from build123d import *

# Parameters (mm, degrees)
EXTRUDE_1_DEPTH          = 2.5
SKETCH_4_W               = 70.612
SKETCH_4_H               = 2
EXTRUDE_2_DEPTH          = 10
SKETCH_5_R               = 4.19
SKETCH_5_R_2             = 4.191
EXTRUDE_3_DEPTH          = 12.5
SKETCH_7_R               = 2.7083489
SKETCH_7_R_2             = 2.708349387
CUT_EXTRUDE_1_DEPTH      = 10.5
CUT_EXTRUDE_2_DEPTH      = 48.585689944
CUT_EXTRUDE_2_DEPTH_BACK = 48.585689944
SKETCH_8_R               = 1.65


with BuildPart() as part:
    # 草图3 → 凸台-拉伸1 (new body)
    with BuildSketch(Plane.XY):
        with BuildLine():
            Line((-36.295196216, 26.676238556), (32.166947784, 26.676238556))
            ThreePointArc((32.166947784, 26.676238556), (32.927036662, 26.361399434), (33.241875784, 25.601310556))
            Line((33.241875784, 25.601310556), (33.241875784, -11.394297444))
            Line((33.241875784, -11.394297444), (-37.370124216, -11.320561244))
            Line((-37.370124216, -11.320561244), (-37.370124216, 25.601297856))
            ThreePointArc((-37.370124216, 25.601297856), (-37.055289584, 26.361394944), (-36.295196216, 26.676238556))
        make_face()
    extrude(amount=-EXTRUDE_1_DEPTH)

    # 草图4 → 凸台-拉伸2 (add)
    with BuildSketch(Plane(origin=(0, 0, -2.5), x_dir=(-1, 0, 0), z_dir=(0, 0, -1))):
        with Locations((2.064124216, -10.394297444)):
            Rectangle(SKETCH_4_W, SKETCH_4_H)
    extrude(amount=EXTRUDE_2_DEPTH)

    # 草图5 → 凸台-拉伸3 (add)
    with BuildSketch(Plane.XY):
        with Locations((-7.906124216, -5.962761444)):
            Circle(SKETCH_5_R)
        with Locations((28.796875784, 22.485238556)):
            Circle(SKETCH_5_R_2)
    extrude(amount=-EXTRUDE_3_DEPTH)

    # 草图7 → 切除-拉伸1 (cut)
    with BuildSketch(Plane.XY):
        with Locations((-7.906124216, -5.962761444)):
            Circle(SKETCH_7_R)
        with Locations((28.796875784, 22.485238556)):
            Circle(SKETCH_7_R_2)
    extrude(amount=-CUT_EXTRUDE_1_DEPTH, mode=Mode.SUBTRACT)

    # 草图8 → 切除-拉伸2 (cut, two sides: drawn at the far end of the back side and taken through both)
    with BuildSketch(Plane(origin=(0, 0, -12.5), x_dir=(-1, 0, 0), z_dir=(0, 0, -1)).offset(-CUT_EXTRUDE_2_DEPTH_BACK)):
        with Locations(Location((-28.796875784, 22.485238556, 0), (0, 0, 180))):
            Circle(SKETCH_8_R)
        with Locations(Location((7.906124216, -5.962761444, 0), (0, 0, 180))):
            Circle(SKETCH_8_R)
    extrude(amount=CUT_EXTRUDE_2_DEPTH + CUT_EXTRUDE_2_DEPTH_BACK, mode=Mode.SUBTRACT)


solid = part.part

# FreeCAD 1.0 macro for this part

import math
import FreeCAD as App
import Part
import Sketcher
from FreeCAD import Vector


def add_polygon(sketch, points):
    """Adds a closed chain of lines whose ends are joined by coincident constraints."""
    first, n = sketch.GeometryCount, len(points)
    for a, b in zip(points, points[1:] + points[:1]):
        sketch.addGeometry(Part.LineSegment(App.Vector(*a, 0), App.Vector(*b, 0)), False)
    for i in range(n):
        sketch.addConstraint(Sketcher.Constraint("Coincident", first + i, 2, first + (i + 1) % n, 1))

doc = App.newDocument("Part")
body = doc.addObject("PartDesign::Body", "Body")

sketch1 = body.newObject("Sketcher::SketchObject", "Sketch")
sketch1.AttachmentSupport = (doc.getObject("XY_Plane"), [""])
sketch1.MapMode = "FlatFace"
sketch1.addGeometry([
    Part.LineSegment(Vector(32.2, 26.7, 0), Vector(-36.3, 26.7, 0)),
    Part.ArcOfCircle(Part.Circle(Vector(-36.3, 25.6, 0), Vector(0, 0, 1), 1.1), math.radians(90), math.radians(180)),
    Part.LineSegment(Vector(-37.4, 25.6, 0), Vector(-37.4, -11.3, 0)),
    Part.LineSegment(Vector(-37.4, -11.3, 0), Vector(33.2, -11.4, 0)),
    Part.LineSegment(Vector(33.2, -11.4, 0), Vector(33.2, 25.6, 0)),
    Part.ArcOfCircle(Part.Circle(Vector(32.2, 25.6, 0), Vector(0, 0, 1), 1.1), math.radians(0), math.radians(90)),
], False)
sketch1.addConstraint([
    Sketcher.Constraint("Tangent", 0, 2, 1, 1),
    Sketcher.Constraint("Coincident", 1, 2, 2, 1),
    Sketcher.Constraint("Coincident", 2, 2, 3, 1),
    Sketcher.Constraint("Coincident", 3, 2, 4, 1),
    Sketcher.Constraint("Tangent", 4, 2, 5, 1),
    Sketcher.Constraint("Tangent", 5, 2, 0, 1),
    Sketcher.Constraint("Horizontal", 0),
    Sketcher.Constraint("Vertical", 2),
    Sketcher.Constraint("Vertical", 4),
    Sketcher.Constraint("Equal", 1, 5),
    Sketcher.Constraint("Radius", 1, 1.074928),
    Sketcher.Constraint("DistanceX", 2, 2, 3, 2, 70.612),
    Sketcher.Constraint("DistanceY", 2, 2, 2, 1, 36.921859),
    Sketcher.Constraint("DistanceY", 4, 1, 4, 2, 36.995608),
    Sketcher.Constraint("DistanceY", 2, 2, 0, 2, 37.9968),
    Sketcher.Constraint("DistanceY", -1, 1, 1, 3, 25.601311),
    Sketcher.Constraint("DistanceX", 1, 3, -1, 1, 36.295196),
])
pad1 = body.newObject("PartDesign::Pad", "Pad")
pad1.Profile = sketch1
pad1.Length = 2.5
pad1.Reversed = True

sketch2 = body.newObject("Sketcher::SketchObject", "Sketch001")
sketch2.AttachmentSupport = (doc.getObject("XY_Plane"), [""])
sketch2.MapMode = "FlatFace"
sketch2.AttachmentOffset = App.Placement(Vector(0, 0, -2.5), App.Rotation())
add_polygon(sketch2, [(33.2, -9.4), (33.2, -11.4), (-37.4, -11.4), (-37.4, -9.4)])
sketch2.addConstraint([
    Sketcher.Constraint("Vertical", 0),
    Sketcher.Constraint("Horizontal", 1),
    Sketcher.Constraint("Vertical", 2),
    Sketcher.Constraint("Horizontal", 3),
    Sketcher.Constraint("DistanceY", 0, 2, 0, 1, 2.0),
    Sketcher.Constraint("DistanceX", 1, 2, 1, 1, 70.612),
    Sketcher.Constraint("DistanceX", -1, 1, 0, 2, 33.241876),
    Sketcher.Constraint("DistanceY", 0, 2, -1, 1, 11.394297),
])
pad2 = body.newObject("PartDesign::Pad", "Pad001")
pad2.Profile = sketch2
pad2.Length = 10
pad2.Reversed = True

sketch3 = body.newObject("Sketcher::SketchObject", "Sketch002")
sketch3.AttachmentSupport = (doc.getObject("XY_Plane"), [""])
sketch3.MapMode = "FlatFace"
sketch3.addGeometry([
    Part.Circle(Vector(-7.9, -6, 0), Vector(0, 0, 1), 4.2),
    Part.Circle(Vector(28.8, 22.5, 0), Vector(0, 0, 1), 4.2),
], False)
sketch3.addConstraint([
    Sketcher.Constraint("Diameter", 0, 8.38),
    Sketcher.Constraint("Diameter", 1, 8.382),
    Sketcher.Constraint("DistanceX", 0, 3, 1, 3, 36.703),
    Sketcher.Constraint("DistanceY", 0, 3, 1, 3, 28.448),
    Sketcher.Constraint("DistanceY", 0, 3, -1, 1, 5.962761),
    Sketcher.Constraint("DistanceX", 0, 3, -1, 1, 7.906124),
])
pad3 = body.newObject("PartDesign::Pad", "Pad002")
pad3.Profile = sketch3
pad3.Length = 12.5
pad3.Reversed = True

sketch4 = body.newObject("Sketcher::SketchObject", "Sketch003")
sketch4.AttachmentSupport = (doc.getObject("XY_Plane"), [""])
sketch4.MapMode = "FlatFace"
sketch4.addGeometry([
    Part.Circle(Vector(-7.9, -6, 0), Vector(0, 0, 1), 2.7),
    Part.Circle(Vector(28.8, 22.5, 0), Vector(0, 0, 1), 2.7),
], False)
sketch4.addConstraint([
    Sketcher.Constraint("Equal", 0, 1),
    Sketcher.Constraint("Diameter", 1, 5.416699),
    Sketcher.Constraint("DistanceX", 0, 3, 1, 3, 36.703),
    Sketcher.Constraint("DistanceY", 0, 3, 1, 3, 28.448),
    Sketcher.Constraint("DistanceY", 0, 3, -1, 1, 5.962761),
    Sketcher.Constraint("DistanceX", 0, 3, -1, 1, 7.906124),
])
pocket1 = body.newObject("PartDesign::Pocket", "Pocket")
pocket1.Profile = sketch4
pocket1.Length = 10.5

sketch5 = body.newObject("Sketcher::SketchObject", "Sketch004")
sketch5.AttachmentSupport = (doc.getObject("XY_Plane"), [""])
sketch5.MapMode = "FlatFace"
sketch5.AttachmentOffset = App.Placement(Vector(0, 0, -12.5), App.Rotation())
sketch5.addGeometry([
    Part.Circle(Vector(28.8, 22.5, 0), Vector(0, 0, 1), 1.6),
    Part.Circle(Vector(-7.9, -6, 0), Vector(0, 0, 1), 1.6),
], False)
sketch5.addConstraint([
    Sketcher.Constraint("Equal", 0, 1),
    Sketcher.Constraint("Diameter", 0, 3.3),
    Sketcher.Constraint("DistanceX", 1, 3, 0, 3, 36.703),
    Sketcher.Constraint("DistanceY", 1, 3, 0, 3, 28.448),
    Sketcher.Constraint("DistanceY", -1, 1, 0, 3, 22.485239),
    Sketcher.Constraint("DistanceX", -1, 1, 0, 3, 28.796876),
])
pocket2 = body.newObject("PartDesign::Pocket", "Pocket001")
pocket2.Profile = sketch5
pocket2.Type = "ThroughAll"
pocket2.Midplane = True

doc.recompute()
